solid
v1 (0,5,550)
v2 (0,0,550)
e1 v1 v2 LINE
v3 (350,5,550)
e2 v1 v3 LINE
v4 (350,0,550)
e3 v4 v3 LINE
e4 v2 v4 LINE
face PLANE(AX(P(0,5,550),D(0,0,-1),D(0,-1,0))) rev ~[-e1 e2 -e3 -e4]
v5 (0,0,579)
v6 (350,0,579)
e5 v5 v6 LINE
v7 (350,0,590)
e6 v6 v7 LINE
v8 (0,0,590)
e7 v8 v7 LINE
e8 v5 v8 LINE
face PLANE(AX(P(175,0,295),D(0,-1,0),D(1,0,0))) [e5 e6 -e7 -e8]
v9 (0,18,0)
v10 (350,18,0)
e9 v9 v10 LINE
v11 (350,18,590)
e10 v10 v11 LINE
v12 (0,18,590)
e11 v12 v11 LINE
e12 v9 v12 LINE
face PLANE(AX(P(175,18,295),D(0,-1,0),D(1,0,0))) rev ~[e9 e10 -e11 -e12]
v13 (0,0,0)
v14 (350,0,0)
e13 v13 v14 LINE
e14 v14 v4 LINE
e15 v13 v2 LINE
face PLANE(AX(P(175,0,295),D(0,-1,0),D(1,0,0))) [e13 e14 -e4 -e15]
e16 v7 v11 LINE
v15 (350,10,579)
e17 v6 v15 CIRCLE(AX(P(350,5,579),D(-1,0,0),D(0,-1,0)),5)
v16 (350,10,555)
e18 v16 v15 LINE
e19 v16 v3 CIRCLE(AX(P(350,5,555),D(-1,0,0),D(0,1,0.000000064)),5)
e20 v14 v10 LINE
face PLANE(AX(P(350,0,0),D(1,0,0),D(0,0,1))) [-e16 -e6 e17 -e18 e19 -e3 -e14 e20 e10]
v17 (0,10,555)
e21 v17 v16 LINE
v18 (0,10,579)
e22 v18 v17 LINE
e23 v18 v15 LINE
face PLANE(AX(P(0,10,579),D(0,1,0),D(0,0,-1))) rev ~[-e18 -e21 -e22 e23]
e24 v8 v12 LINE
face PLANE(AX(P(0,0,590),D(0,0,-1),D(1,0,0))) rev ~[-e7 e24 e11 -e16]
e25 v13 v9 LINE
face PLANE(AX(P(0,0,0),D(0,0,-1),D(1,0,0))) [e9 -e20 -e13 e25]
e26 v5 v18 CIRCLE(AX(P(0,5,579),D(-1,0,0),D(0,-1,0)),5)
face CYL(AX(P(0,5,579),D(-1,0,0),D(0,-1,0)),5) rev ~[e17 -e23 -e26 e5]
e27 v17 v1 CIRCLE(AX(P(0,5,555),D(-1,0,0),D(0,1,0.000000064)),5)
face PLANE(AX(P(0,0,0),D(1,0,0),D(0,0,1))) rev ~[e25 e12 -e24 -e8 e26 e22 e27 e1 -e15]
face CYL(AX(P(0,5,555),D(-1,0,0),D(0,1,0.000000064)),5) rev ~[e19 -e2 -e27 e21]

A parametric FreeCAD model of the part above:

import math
import FreeCAD as App
import Part
import Sketcher
Q = App.Units.Quantity


def add_polygon(sketch, points):
    """Adds a closed chain of lines whose ends are joined by coincident constraints."""
    first, n = sketch.GeometryCount, len(points)
    for a, b in zip(points, points[1:] + points[:1]):
        sketch.addGeometry(Part.LineSegment(App.Vector(*a, 0), App.Vector(*b, 0)), False)
    for i in range(n):
        sketch.addConstraint(Sketcher.Constraint("Coincident", first + i, 2, first + (i + 1) % n, 1))

doc = App.newDocument("Part")
body = doc.addObject("PartDesign::Body", "Body")

sketch1 = body.newObject("Sketcher::SketchObject", "Sketch")
sketch1.AttachmentSupport = (doc.getObject("XZ_Plane"), [""])
sketch1.MapMode = "FlatFace"
add_polygon(sketch1, [(0, 590), (0, 0), (350, 0), (350, 590)])
sketch1.addConstraint([
    Sketcher.Constraint("Vertical", 0),
    Sketcher.Constraint("Horizontal", 1),
    Sketcher.Constraint("Vertical", 2),
    Sketcher.Constraint("Horizontal", 3),
    Sketcher.Constraint("Coincident", 0, 2, -1, 1),
    Sketcher.Constraint("DistanceX", 1, 1, 1, 2, Q("350 mm")),
    Sketcher.Constraint("DistanceY", 0, 2, 0, 1, Q("590 mm")),
])
pad1 = body.newObject("PartDesign::Pad", "Pad")
pad1.Profile = sketch1
pad1.Length = 18
pad1.Reversed = True

sketch2 = body.newObject("Sketcher::SketchObject", "Sketch001")
sketch2.AttachmentSupport = (doc.getObject("YZ_Plane"), [""])
sketch2.MapMode = "FlatFace"
sketch2.addGeometry([
    Part.LineSegment(App.Vector(5, 550, 0), App.Vector(0, 550, 0)),
    Part.LineSegment(App.Vector(0, 550, 0), App.Vector(0, 579, 0)),
    Part.ArcOfCircle(Part.Circle(App.Vector(5, 579, 0), App.Vector(0, 0, 1), 5), math.radians(0), math.radians(180)),
    Part.LineSegment(App.Vector(10, 579, 0), App.Vector(10, 555, 0)),
    Part.ArcOfCircle(Part.Circle(App.Vector(5, 555, 0), App.Vector(0, 0, 1), 5), math.radians(-90), math.radians(0)),
], False)
sketch2.addConstraint([
    Sketcher.Constraint("Coincident", 0, 2, 1, 1),
    Sketcher.Constraint("Tangent", 1, 2, 2, 2),
    Sketcher.Constraint("Tangent", 2, 1, 3, 1),
    Sketcher.Constraint("Tangent", 3, 2, 4, 2),
    Sketcher.Constraint("Tangent", 4, 1, 0, 1),
    Sketcher.Constraint("Horizontal", 0),
    Sketcher.Constraint("Vertical", 1),
    Sketcher.Constraint("Vertical", 3),
    Sketcher.Constraint("Equal", 2, 4),
    Sketcher.Constraint("PointOnObject", 0, 2, -2),
    Sketcher.Constraint("Radius", 2, Q("5 mm")),
    Sketcher.Constraint("DistanceY", 1, 1, 1, 2, Q("29 mm")),
    Sketcher.Constraint("DistanceY", -1, 1, 2, 3, Q("579 mm")),
])
pocket1 = body.newObject("PartDesign::Pocket", "Pocket")
pocket1.Profile = sketch2
pocket1.Length = 452
pocket1.Reversed = True

doc.recompute()
